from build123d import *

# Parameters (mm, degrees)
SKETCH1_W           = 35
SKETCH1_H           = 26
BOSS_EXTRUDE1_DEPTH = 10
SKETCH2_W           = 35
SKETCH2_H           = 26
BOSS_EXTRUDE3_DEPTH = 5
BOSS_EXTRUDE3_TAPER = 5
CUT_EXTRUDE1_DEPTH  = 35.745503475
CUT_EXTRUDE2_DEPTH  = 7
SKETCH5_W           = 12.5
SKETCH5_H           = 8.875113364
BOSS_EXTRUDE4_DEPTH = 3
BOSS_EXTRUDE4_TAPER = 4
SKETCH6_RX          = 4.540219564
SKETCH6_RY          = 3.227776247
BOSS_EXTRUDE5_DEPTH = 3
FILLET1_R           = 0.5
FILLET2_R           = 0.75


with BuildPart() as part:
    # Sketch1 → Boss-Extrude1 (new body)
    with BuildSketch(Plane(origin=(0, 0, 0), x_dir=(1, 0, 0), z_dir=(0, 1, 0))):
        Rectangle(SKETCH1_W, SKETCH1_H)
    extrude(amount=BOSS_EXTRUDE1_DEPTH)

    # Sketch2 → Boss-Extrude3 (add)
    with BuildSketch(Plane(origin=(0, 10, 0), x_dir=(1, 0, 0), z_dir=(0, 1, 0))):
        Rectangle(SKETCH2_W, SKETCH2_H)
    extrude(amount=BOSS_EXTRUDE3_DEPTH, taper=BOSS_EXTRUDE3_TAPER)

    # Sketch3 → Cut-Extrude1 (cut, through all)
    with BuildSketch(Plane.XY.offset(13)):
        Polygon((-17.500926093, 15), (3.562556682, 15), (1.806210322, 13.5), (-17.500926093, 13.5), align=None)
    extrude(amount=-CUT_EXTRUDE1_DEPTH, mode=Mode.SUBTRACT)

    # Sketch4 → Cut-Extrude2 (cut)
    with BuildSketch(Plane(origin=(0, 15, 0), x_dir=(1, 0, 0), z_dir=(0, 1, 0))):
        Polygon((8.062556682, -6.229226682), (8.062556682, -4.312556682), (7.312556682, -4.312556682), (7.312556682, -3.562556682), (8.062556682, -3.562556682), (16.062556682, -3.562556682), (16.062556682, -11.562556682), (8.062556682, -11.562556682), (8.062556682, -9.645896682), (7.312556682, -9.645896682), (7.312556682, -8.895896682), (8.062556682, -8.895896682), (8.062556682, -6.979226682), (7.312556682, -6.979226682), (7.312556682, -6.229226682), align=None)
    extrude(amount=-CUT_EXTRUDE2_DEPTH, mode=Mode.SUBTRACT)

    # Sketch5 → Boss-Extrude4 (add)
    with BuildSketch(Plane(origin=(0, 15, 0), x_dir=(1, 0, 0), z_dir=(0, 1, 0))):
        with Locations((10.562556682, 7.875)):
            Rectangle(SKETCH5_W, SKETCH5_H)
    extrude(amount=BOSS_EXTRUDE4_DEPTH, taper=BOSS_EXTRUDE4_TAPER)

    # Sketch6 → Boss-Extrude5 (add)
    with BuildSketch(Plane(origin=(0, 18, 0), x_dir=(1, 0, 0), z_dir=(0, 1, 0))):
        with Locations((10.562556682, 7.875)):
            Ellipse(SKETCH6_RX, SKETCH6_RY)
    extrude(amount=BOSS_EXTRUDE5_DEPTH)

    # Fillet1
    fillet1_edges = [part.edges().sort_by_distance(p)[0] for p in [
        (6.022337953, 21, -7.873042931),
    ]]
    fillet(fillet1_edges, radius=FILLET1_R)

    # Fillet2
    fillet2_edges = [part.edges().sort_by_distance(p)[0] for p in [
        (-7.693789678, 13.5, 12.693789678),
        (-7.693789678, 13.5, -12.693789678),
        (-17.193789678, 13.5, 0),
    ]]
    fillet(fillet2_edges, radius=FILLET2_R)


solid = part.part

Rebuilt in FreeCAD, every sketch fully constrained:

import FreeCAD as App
import Part
import Sketcher

V = App.Vector


def edges_at(feature, points):
    """Names of the edges that pass closest to the given points."""
    edges = feature.Shape.Edges
    near = lambda p: min(range(len(edges)), key=lambda i: edges[i].distToShape(Part.Vertex(*p))[0])
    return sorted({f"Edge{near(p) + 1}" for p in points})

doc = App.newDocument("Part")
body = doc.addObject("PartDesign::Body", "Body")

# Sketch on XZ plane
sketch1 = body.newObject("Sketcher::SketchObject", "Sketch")
sketch1.AttachmentSupport = (doc.getObject("XZ_Plane"), [""])
sketch1.MapMode = "FlatFace"
sketch1.addGeometry([
    Part.LineSegment(V(-18, -13, 0), V(-18, 13, 0)),
    Part.LineSegment(V(-18, 13, 0), V(18, 13, 0)),
    Part.LineSegment(V(18, 13, 0), V(18, -13, 0)),
    Part.LineSegment(V(18, -13, 0), V(-18, -13, 0)),
], False)
sketch1.addConstraint([
    Sketcher.Constraint("Coincident", 0, 2, 1, 1),
    Sketcher.Constraint("Coincident", 1, 2, 2, 1),
    Sketcher.Constraint("Coincident", 2, 2, 3, 1),
    Sketcher.Constraint("Coincident", 3, 2, 0, 1),
    Sketcher.Constraint("Vertical", 0),
    Sketcher.Constraint("Horizontal", 1),
    Sketcher.Constraint("Vertical", 2),
    Sketcher.Constraint("Horizontal", 3),
    Sketcher.Constraint("Symmetric", 0, 2, 2, 2, -1, 1),
    Sketcher.Constraint("DistanceX", 1, 1, 1, 2, 35.0),
    Sketcher.Constraint("DistanceY", 0, 1, 0, 2, 26.0),
])
pad1 = body.newObject("PartDesign::Pad", "Pad")
pad1.Profile = sketch1
pad1.Length = 10
pad1.Reversed = True

# Sketch on XZ plane
sketch2 = body.newObject("Sketcher::SketchObject", "Sketch001")
sketch2.AttachmentSupport = (doc.getObject("XZ_Plane"), [""])
sketch2.MapMode = "FlatFace"
sketch2.AttachmentOffset = App.Placement(V(0, 0, -10), App.Rotation())
sketch2.addGeometry([
    Part.LineSegment(V(-18, -13, 0), V(-18, 13, 0)),
    Part.LineSegment(V(-18, 13, 0), V(18, 13, 0)),
    Part.LineSegment(V(18, 13, 0), V(18, -13, 0)),
    Part.LineSegment(V(18, -13, 0), V(-18, -13, 0)),
], False)
sketch2.addConstraint([
    Sketcher.Constraint("Coincident", 0, 2, 1, 1),
    Sketcher.Constraint("Coincident", 1, 2, 2, 1),
    Sketcher.Constraint("Coincident", 2, 2, 3, 1),
    Sketcher.Constraint("Coincident", 3, 2, 0, 1),
    Sketcher.Constraint("Vertical", 0),
    Sketcher.Constraint("Horizontal", 1),
    Sketcher.Constraint("Vertical", 2),
    Sketcher.Constraint("Horizontal", 3),
    Sketcher.Constraint("Symmetric", 0, 2, 2, 2, -1, 1),
    Sketcher.Constraint("DistanceX", 1, 1, 1, 2, 35.0),
    Sketcher.Constraint("DistanceY", 0, 1, 0, 2, 26.0),
])
pad2 = body.newObject("PartDesign::Pad", "Pad001")
pad2.Profile = sketch2
pad2.Length = 5
pad2.Reversed = True
pad2.TaperAngle = -5

# Sketch on XY plane
sketch3 = body.newObject("Sketcher::SketchObject", "Sketch002")
sketch3.AttachmentSupport = (doc.getObject("XY_Plane"), [""])
sketch3.MapMode = "FlatFace"
sketch3.AttachmentOffset = App.Placement(V(0, 0, 13), App.Rotation())
sketch3.addGeometry([
    Part.LineSegment(V(3.6, 15, 0), V(-17.5, 15, 0)),
    Part.LineSegment(V(-17.5, 15, 0), V(-17.5, 13.5, 0)),
    Part.LineSegment(V(-17.5, 13.5, 0), V(1.8, 13.5, 0)),
    Part.LineSegment(V(1.8, 13.5, 0), V(3.6, 15, 0)),
], False)
sketch3.addConstraint([
    Sketcher.Constraint("Coincident", 0, 2, 1, 1),
    Sketcher.Constraint("Coincident", 1, 2, 2, 1),
    Sketcher.Constraint("Coincident", 2, 2, 3, 1),
    Sketcher.Constraint("Coincident", 3, 2, 0, 1),
    Sketcher.Constraint("Horizontal", 0),
    Sketcher.Constraint("Vertical", 1),
    Sketcher.Constraint("Horizontal", 2),
    Sketcher.Constraint("DistanceY", 1, 2, 1, 1, 1.5),
    Sketcher.Constraint("DistanceY", -1, 1, 0, 2, 15.0),
    Sketcher.Constraint("Distance", 3, 2.309708),
    Sketcher.Constraint("DistanceX", 0, 2, 0, 1, 21.063483),
    Sketcher.Constraint("DistanceX", -1, 1, 2, 2, 1.80621),
])
pocket1 = body.newObject("PartDesign::Pocket", "Pocket")
pocket1.Profile = sketch3
pocket1.Type = "ThroughAll"

# Sketch on XZ plane
sketch4 = body.newObject("Sketcher::SketchObject", "Sketch003")
sketch4.AttachmentSupport = (doc.getObject("XZ_Plane"), [""])
sketch4.MapMode = "FlatFace"
sketch4.AttachmentOffset = App.Placement(V(0, 0, -15), App.Rotation())
sketch4.addGeometry([
    Part.LineSegment(V(8.1, 4.3, 0), V(8.1, 6.2, 0)),  # 0
    Part.LineSegment(V(8.1, 6.2, 0), V(7.3, 6.2, 0)),  # 1
    Part.LineSegment(V(7.3, 6.2, 0), V(7.3, 7, 0)),  # 2
    Part.LineSegment(V(7.3, 7, 0), V(8.1, 7, 0)),  # 3
    Part.LineSegment(V(8.1, 7, 0), V(8.1, 8.9, 0)),  # 4
    Part.LineSegment(V(8.1, 8.9, 0), V(7.3, 8.9, 0)),  # 5
    Part.LineSegment(V(7.3, 8.9, 0), V(7.3, 9.6, 0)),  # 6
    Part.LineSegment(V(7.3, 9.6, 0), V(8.1, 9.6, 0)),  # 7
    Part.LineSegment(V(8.1, 9.6, 0), V(8.1, 11.6, 0)),  # 8
    Part.LineSegment(V(8.1, 11.6, 0), V(16.1, 11.6, 0)),  # 9
    Part.LineSegment(V(16.1, 11.6, 0), V(16.1, 3.6, 0)),  # 10
    Part.LineSegment(V(16.1, 3.6, 0), V(7.3, 3.6, 0)),  # 11
    Part.LineSegment(V(7.3, 3.6, 0), V(7.3, 4.3, 0)),  # 12
    Part.LineSegment(V(7.3, 4.3, 0), V(8.1, 4.3, 0)),  # 13
], False)
sketch4.addConstraint([
    Sketcher.Constraint("Coincident", 0, 2, 1, 1),
    Sketcher.Constraint("Coincident", 1, 2, 2, 1),
    Sketcher.Constraint("Coincident", 2, 2, 3, 1),
    Sketcher.Constraint("Coincident", 3, 2, 4, 1),
    Sketcher.Constraint("Coincident", 4, 2, 5, 1),
    Sketcher.Constraint("Coincident", 5, 2, 6, 1),
    Sketcher.Constraint("Coincident", 6, 2, 7, 1),
    Sketcher.Constraint("Coincident", 7, 2, 8, 1),
    Sketcher.Constraint("Coincident", 8, 2, 9, 1),
    Sketcher.Constraint("Coincident", 9, 2, 10, 1),
    Sketcher.Constraint("Coincident", 10, 2, 11, 1),
    Sketcher.Constraint("Coincident", 11, 2, 12, 1),
    Sketcher.Constraint("Coincident", 12, 2, 13, 1),
    Sketcher.Constraint("Coincident", 13, 2, 0, 1),
    Sketcher.Constraint("Vertical", 0),
    Sketcher.Constraint("Horizontal", 1),
    Sketcher.Constraint("Vertical", 2),
    Sketcher.Constraint("Horizontal", 3),
    Sketcher.Constraint("Vertical", 4),
    Sketcher.Constraint("Horizontal", 5),
    Sketcher.Constraint("Vertical", 6),
    Sketcher.Constraint("Horizontal", 7),
    Sketcher.Constraint("Vertical", 8),
    Sketcher.Constraint("Horizontal", 9),
    Sketcher.Constraint("Vertical", 10),
    Sketcher.Constraint("Horizontal", 11),
    Sketcher.Constraint("Vertical", 12),
    Sketcher.Constraint("Horizontal", 13),
    Sketcher.Constraint("Vertical", 0, 2, 3, 2),
    Sketcher.Constraint("Vertical", 2, 2, 5, 2),
    Sketcher.Constraint("Vertical", 4, 2, 7, 2),
    Sketcher.Constraint("Vertical", 6, 2, 11, 2),
    Sketcher.Constraint("Equal", 13, 2),
    Sketcher.Constraint("Equal", 0, 4),
    Sketcher.Constraint("Equal", 2, 6),
    Sketcher.Constraint("Equal", 9, 10),
    Sketcher.Constraint("Equal", 6, 12),
    Sketcher.Constraint("DistanceX", 9, 1, 9, 2, 8.0),
    Sketcher.Constraint("DistanceX", 1, 2, 1, 1, 0.75),
    Sketcher.Constraint("DistanceY", 0, 1, 0, 2, 1.91667),
    Sketcher.Constraint("DistanceX", -1, 1, 0, 2, 8.062557),
    Sketcher.Constraint("DistanceY", -1, 1, 0, 2, 6.229227),
])
pocket2 = body.newObject("PartDesign::Pocket", "Pocket001")
pocket2.Profile = sketch4
pocket2.Length = 7
pocket2.Reversed = True

# Sketch on XZ plane
sketch5 = body.newObject("Sketcher::SketchObject", "Sketch004")
sketch5.AttachmentSupport = (doc.getObject("XZ_Plane"), [""])
sketch5.MapMode = "FlatFace"
sketch5.AttachmentOffset = App.Placement(V(0, 0, -15), App.Rotation())
sketch5.addGeometry([
    Part.LineSegment(V(4, -12, 0), V(4, -3, 0)),
    Part.LineSegment(V(4, -3, 0), V(17, -3, 0)),
    Part.LineSegment(V(17, -3, 0), V(17, -12, 0)),
    Part.LineSegment(V(17, -12, 0), V(4, -12, 0)),
], False)
sketch5.addConstraint([
    Sketcher.Constraint("Coincident", 0, 2, 1, 1),
    Sketcher.Constraint("Coincident", 1, 2, 2, 1),
    Sketcher.Constraint("Coincident", 2, 2, 3, 1),
    Sketcher.Constraint("Coincident", 3, 2, 0, 1),
    Sketcher.Constraint("Vertical", 0),
    Sketcher.Constraint("Horizontal", 1),
    Sketcher.Constraint("Vertical", 2),
    Sketcher.Constraint("Horizontal", 3),
    Sketcher.Constraint("DistanceX", 1, 1, 1, 2, 12.5),
    Sketcher.Constraint("DistanceY", 0, 1, 0, 2, 8.875113),
    Sketcher.Constraint("DistanceX", -1, 1, 0, 2, 4.312557),
    Sketcher.Constraint("DistanceY", 0, 2, -1, 1, 3.437443),
])
pad3 = body.newObject("PartDesign::Pad", "Pad002")
pad3.Profile = sketch5
pad3.Length = 3
pad3.Reversed = True
pad3.TaperAngle = -4

# Sketch on XZ plane
sketch6 = body.newObject("Sketcher::SketchObject", "Sketch005")
sketch6.AttachmentSupport = (doc.getObject("XZ_Plane"), [""])
sketch6.MapMode = "FlatFace"
sketch6.AttachmentOffset = App.Placement(V(0, 0, -18), App.Rotation())
sketch6.addGeometry(Part.Ellipse(V(15.102776, -7.875, 0), V(10.562557, -4.647224, 0), V(10.562557, -7.875, 0)), False)
sketch6.addConstraint(Sketcher.Constraint("Block", 0))
pad4 = body.newObject("PartDesign::Pad", "Pad003")
pad4.Profile = sketch6
pad4.Length = 3
pad4.Reversed = True
doc.recompute()

fillet = body.newObject("PartDesign::Fillet", "Fillet")
fillet.Base = (pad4, edges_at(pad4, [(6.022, 21, -7.873)]))
fillet.Radius = 0.5
doc.recompute()

fillet2 = body.newObject("PartDesign::Fillet", "Fillet001")
fillet2.Base = (fillet, edges_at(fillet, [(-7.694, 13.5, 12.694), (-7.694, 13.5, -12.694), (-17.194, 13.5, 0)]))
fillet2.Radius = 0.75

doc.recompute()
